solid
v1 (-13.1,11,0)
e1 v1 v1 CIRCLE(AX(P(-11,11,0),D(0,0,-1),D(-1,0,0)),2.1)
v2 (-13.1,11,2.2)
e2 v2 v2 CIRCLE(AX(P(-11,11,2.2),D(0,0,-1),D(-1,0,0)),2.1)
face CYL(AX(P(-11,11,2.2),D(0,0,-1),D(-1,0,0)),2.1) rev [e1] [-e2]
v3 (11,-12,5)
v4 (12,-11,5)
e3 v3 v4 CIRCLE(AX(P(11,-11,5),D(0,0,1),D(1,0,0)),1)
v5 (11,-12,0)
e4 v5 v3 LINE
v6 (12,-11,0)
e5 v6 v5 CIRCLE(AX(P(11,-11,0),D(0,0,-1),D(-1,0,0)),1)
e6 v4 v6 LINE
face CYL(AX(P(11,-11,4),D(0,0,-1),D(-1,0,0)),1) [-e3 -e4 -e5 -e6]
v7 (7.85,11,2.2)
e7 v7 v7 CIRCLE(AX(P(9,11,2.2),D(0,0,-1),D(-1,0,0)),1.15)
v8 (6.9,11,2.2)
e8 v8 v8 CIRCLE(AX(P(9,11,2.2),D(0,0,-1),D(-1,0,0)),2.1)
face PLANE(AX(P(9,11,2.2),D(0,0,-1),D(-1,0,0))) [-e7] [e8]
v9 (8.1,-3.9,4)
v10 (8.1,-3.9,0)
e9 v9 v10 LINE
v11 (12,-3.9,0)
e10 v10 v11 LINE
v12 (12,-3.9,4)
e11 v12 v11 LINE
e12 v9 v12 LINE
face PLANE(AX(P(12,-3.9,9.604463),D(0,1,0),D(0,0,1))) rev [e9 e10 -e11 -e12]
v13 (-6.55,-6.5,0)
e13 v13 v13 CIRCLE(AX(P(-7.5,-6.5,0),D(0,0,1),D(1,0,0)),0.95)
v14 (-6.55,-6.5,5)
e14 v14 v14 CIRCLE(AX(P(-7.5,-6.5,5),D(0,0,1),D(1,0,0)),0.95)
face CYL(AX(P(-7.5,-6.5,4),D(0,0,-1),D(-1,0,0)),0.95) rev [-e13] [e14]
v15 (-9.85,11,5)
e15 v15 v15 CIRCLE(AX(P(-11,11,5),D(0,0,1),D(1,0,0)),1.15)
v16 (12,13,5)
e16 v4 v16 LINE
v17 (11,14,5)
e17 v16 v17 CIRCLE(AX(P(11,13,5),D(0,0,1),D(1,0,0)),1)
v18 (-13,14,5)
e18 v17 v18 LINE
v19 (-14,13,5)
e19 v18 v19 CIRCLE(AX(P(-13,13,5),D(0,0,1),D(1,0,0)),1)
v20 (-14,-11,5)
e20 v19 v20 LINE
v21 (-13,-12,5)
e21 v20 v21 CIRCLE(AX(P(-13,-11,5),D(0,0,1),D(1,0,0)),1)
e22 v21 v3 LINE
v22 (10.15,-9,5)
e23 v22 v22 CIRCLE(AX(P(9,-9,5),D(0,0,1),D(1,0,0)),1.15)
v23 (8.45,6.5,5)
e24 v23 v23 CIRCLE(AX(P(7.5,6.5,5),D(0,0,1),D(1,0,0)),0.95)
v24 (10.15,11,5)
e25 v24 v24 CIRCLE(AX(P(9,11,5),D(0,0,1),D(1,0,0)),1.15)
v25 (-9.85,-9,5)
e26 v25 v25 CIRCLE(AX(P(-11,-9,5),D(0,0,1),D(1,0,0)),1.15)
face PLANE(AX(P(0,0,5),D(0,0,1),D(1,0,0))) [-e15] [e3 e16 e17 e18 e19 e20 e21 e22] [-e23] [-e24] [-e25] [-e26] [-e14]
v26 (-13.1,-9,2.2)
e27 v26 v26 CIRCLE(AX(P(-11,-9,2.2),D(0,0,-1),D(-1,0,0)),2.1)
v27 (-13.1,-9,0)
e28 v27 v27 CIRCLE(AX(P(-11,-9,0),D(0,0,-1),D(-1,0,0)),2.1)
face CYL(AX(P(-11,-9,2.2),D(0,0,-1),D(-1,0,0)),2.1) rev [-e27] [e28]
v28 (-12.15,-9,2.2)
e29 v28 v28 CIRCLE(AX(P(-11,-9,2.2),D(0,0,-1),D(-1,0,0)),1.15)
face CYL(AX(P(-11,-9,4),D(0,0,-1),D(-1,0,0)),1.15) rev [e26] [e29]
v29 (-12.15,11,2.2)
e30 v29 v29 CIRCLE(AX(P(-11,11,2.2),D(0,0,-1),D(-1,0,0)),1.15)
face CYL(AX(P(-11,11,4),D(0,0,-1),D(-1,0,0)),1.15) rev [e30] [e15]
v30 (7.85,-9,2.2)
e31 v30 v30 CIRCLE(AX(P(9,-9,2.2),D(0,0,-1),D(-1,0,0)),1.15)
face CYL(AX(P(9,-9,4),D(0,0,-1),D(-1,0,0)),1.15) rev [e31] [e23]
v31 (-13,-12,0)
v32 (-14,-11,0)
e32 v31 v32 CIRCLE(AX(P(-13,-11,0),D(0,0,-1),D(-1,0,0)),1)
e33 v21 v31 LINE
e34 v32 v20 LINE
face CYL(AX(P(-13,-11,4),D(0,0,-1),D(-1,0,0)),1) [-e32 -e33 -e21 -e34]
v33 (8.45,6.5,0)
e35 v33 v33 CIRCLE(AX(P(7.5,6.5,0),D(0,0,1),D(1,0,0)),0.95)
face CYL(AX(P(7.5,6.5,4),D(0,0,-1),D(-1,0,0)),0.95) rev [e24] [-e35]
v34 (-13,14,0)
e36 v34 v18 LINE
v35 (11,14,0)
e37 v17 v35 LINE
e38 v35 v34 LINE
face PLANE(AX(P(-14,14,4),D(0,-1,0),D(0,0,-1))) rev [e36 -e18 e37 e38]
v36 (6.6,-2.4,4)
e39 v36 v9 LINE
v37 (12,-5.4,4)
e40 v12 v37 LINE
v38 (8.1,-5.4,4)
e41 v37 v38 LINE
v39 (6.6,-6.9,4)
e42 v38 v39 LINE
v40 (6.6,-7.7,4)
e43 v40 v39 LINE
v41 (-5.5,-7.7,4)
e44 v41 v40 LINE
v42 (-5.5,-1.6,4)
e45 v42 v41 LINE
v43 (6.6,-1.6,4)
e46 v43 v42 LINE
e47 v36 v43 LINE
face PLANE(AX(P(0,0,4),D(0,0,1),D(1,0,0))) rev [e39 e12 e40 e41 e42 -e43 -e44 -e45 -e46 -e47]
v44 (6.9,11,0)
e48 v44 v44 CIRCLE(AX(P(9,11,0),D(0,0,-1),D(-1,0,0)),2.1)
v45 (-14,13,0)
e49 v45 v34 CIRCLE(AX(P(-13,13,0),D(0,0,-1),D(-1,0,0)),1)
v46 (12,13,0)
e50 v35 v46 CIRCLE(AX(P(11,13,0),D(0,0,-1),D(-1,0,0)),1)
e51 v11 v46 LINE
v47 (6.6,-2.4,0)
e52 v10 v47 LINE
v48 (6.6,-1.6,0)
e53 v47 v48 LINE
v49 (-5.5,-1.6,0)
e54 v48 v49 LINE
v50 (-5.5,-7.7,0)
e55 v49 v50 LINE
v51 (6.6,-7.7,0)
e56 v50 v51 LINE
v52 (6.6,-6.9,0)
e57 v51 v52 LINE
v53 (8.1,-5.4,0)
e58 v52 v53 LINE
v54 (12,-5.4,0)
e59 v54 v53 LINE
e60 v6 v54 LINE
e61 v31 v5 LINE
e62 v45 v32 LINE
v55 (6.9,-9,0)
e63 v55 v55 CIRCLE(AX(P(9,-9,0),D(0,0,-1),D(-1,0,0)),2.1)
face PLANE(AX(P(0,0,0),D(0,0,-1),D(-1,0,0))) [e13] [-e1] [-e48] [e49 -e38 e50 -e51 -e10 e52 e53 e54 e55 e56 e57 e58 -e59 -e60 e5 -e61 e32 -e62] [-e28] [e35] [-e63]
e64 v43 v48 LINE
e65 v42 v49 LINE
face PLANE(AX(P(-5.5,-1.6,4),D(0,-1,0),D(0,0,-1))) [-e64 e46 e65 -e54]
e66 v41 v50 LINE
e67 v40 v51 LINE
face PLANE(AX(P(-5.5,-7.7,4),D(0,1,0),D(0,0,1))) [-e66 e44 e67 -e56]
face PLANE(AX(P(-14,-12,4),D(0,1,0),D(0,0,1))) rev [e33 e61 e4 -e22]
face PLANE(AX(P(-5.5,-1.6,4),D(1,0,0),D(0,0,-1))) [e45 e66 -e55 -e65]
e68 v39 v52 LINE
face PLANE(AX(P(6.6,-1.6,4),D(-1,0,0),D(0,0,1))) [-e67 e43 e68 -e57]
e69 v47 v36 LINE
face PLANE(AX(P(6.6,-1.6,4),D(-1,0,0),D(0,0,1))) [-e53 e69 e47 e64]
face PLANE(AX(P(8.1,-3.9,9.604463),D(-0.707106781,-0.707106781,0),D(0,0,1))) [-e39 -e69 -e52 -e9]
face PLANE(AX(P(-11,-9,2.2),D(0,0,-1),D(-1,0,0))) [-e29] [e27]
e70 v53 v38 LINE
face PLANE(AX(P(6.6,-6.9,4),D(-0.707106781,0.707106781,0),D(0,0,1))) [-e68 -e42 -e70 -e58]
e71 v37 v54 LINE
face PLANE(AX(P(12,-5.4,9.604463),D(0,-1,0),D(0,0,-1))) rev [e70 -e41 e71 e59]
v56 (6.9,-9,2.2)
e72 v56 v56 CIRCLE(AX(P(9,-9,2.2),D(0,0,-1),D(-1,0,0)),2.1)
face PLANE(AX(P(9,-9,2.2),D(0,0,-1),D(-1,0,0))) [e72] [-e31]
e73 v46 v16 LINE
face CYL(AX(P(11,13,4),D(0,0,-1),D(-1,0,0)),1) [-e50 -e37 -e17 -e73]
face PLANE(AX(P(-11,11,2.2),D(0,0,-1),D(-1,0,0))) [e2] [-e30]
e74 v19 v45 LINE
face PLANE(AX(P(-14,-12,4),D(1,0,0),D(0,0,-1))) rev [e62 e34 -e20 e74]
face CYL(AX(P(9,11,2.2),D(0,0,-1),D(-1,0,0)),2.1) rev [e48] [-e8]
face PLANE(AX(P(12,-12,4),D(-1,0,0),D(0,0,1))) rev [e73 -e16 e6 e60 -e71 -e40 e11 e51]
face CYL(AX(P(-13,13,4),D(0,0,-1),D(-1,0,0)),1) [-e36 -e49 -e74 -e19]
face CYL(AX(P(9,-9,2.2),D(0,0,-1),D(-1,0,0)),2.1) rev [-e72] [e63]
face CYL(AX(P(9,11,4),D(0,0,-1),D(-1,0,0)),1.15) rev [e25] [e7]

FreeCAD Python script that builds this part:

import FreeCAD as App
import Part
import Sketcher
Q = App.Units.Quantity


def edges_at(feature, points):
    """Names of the edges that pass closest to the given points."""
    edges = feature.Shape.Edges
    near = lambda p: min(range(len(edges)), key=lambda i: edges[i].distToShape(Part.Vertex(*p))[0])
    return sorted({f"Edge{near(p) + 1}" for p in points})


def add_polygon(sketch, points):
    """Adds a closed chain of lines whose ends are joined by coincident constraints."""
    first, n = sketch.GeometryCount, len(points)
    for a, b in zip(points, points[1:] + points[:1]):
        sketch.addGeometry(Part.LineSegment(App.Vector(*a, 0), App.Vector(*b, 0)), False)
    for i in range(n):
        sketch.addConstraint(Sketcher.Constraint("Coincident", first + i, 2, first + (i + 1) % n, 1))

doc = App.newDocument("Part")
body = doc.addObject("PartDesign::Body", "Body")

# Sketch on XY plane
sketch1 = doc.addObject("Sketcher::SketchObject", "Sketch")
body.addObject(sketch1)
sketch1.AttachmentSupport = (doc.XY_Plane, [""])
sketch1.MapMode = "FlatFace"
add_polygon(sketch1, [(-14, 14), (-14, -12), (12, -12), (12, 14)])  # lines 0-3
sketch1.addGeometry(Part.Circle(App.Vector(-11, -9, 0), App.Vector(0, 0, 1), 1.1), False)  # 4
sketch1.addGeometry(Part.Circle(App.Vector(-7.5, -6.5, 0), App.Vector(0, 0, 1), 0.9), False)  # 5
add_polygon(sketch1, [(6.6, -7.7), (-5.5, -7.7), (-5.5, -1.6), (6.6, -1.6)])  # lines 6-9
sketch1.addGeometry(Part.Circle(App.Vector(9, -9, 0), App.Vector(0, 0, 1), 1.1), False)  # 10
sketch1.addGeometry(Part.Circle(App.Vector(-11, 11, 0), App.Vector(0, 0, 1), 1.1), False)  # 11
sketch1.addGeometry(Part.Circle(App.Vector(7.5, 6.5, 0), App.Vector(0, 0, 1), 0.9), False)  # 12
sketch1.addGeometry(Part.Circle(App.Vector(9, 11, 0), App.Vector(0, 0, 1), 1.1), False)  # 13
sketch1.addConstraint(Sketcher.Constraint("Vertical", 0))
sketch1.addConstraint(Sketcher.Constraint("Horizontal", 1))
sketch1.addConstraint(Sketcher.Constraint("Vertical", 2))
sketch1.addConstraint(Sketcher.Constraint("Horizontal", 3))
sketch1.addConstraint(Sketcher.Constraint("Horizontal", 6))
sketch1.addConstraint(Sketcher.Constraint("Vertical", 7))
sketch1.addConstraint(Sketcher.Constraint("Horizontal", 8))
sketch1.addConstraint(Sketcher.Constraint("Vertical", 9))
sketch1.addConstraint(Sketcher.Constraint("Equal", 4, 10))
sketch1.addConstraint(Sketcher.Constraint("Equal", 10, 11))
sketch1.addConstraint(Sketcher.Constraint("Equal", 5, 12))
sketch1.addConstraint(Sketcher.Constraint("Equal", 11, 13))
sketch1.addConstraint(Sketcher.Constraint("Symmetric", 5, 3, 12, 3, -1, 1))
sketch1.addConstraint(Sketcher.Constraint("Horizontal", 4, 3, 10, 3))
sketch1.addConstraint(Sketcher.Constraint("Horizontal", 11, 3, 13, 3))
sketch1.addConstraint(Sketcher.Constraint("Vertical", 4, 3, 11, 3))
sketch1.addConstraint(Sketcher.Constraint("Vertical", 10, 3, 13, 3))
sketch1.addConstraint(Sketcher.Constraint("Equal", 3, 0))
sketch1.addConstraint(Sketcher.Constraint("Diameter", 4, Q("2.3 mm")))
sketch1.addConstraint(Sketcher.Constraint("Diameter", 5, Q("1.9 mm")))
sketch1.addConstraint(Sketcher.Constraint("DistanceX", 1, 1, 1, 2, Q("26 mm")))
sketch1.addConstraint(Sketcher.Constraint("DistanceX", 6, 2, 6, 1, Q("12.1 mm")))
sketch1.addConstraint(Sketcher.Constraint("DistanceY", 7, 1, 7, 2, Q("6.1 mm")))
sketch1.addConstraint(Sketcher.Constraint("DistanceX", 4, 3, -1, 1, Q("11 mm")))
sketch1.addConstraint(Sketcher.Constraint("DistanceY", 4, 3, -1, 1, Q("9 mm")))
sketch1.addConstraint(Sketcher.Constraint("DistanceX", -1, 1, 10, 3, Q("9 mm")))
sketch1.addConstraint(Sketcher.Constraint("DistanceY", -1, 1, 11, 3, Q("11 mm")))
sketch1.addConstraint(Sketcher.Constraint("DistanceX", 0, 2, -1, 1, Q("14 mm")))
sketch1.addConstraint(Sketcher.Constraint("DistanceY", 0, 2, -1, 1, Q("12 mm")))
sketch1.addConstraint(Sketcher.Constraint("DistanceX", 5, 3, 12, 3, Q("15 mm")))
sketch1.addConstraint(Sketcher.Constraint("DistanceY", 5, 3, 12, 3, Q("13 mm")))
sketch1.addConstraint(Sketcher.Constraint("DistanceX", 5, 3, 6, 2, Q("2 mm")))
sketch1.addConstraint(Sketcher.Constraint("DistanceY", 6, 2, -1, 1, Q("7.7 mm")))
pad1 = doc.addObject("PartDesign::Pad", "Pad")
body.addObject(pad1)
pad1.Profile = sketch1
pad1.Length = 4

# Sketch on XY plane
sketch2 = doc.addObject("Sketcher::SketchObject", "Sketch001")
body.addObject(sketch2)
sketch2.AttachmentSupport = (doc.XY_Plane, [""])
sketch2.MapMode = "FlatFace"
sketch2.AttachmentOffset = App.Placement(App.Vector(0, 0, 4), App.Rotation())
add_polygon(sketch2, [(-14, 14), (-14, -12), (12, -12), (12, 14)])  # lines 0-3
sketch2.addGeometry(Part.Circle(App.Vector(-11, -9, 0), App.Vector(0, 0, 1), 1.1), False)  # 4
sketch2.addGeometry(Part.Circle(App.Vector(-7.5, -6.5, 0), App.Vector(0, 0, 1), 0.9), False)  # 5
sketch2.addGeometry(Part.Circle(App.Vector(9, -9, 0), App.Vector(0, 0, 1), 1.1), False)  # 6
sketch2.addGeometry(Part.Circle(App.Vector(-11, 11, 0), App.Vector(0, 0, 1), 1.1), False)  # 7
sketch2.addGeometry(Part.Circle(App.Vector(7.5, 6.5, 0), App.Vector(0, 0, 1), 0.9), False)  # 8
sketch2.addGeometry(Part.Circle(App.Vector(9, 11, 0), App.Vector(0, 0, 1), 1.1), False)  # 9
sketch2.addConstraint(Sketcher.Constraint("Vertical", 0))
sketch2.addConstraint(Sketcher.Constraint("Horizontal", 1))
sketch2.addConstraint(Sketcher.Constraint("Vertical", 2))
sketch2.addConstraint(Sketcher.Constraint("Horizontal", 3))
sketch2.addConstraint(Sketcher.Constraint("Equal", 4, 6))
sketch2.addConstraint(Sketcher.Constraint("Equal", 6, 7))
sketch2.addConstraint(Sketcher.Constraint("Equal", 5, 8))
sketch2.addConstraint(Sketcher.Constraint("Equal", 7, 9))
sketch2.addConstraint(Sketcher.Constraint("Symmetric", 5, 3, 8, 3, -1, 1))
sketch2.addConstraint(Sketcher.Constraint("Horizontal", 4, 3, 6, 3))
sketch2.addConstraint(Sketcher.Constraint("Horizontal", 7, 3, 9, 3))
sketch2.addConstraint(Sketcher.Constraint("Vertical", 4, 3, 7, 3))
sketch2.addConstraint(Sketcher.Constraint("Vertical", 6, 3, 9, 3))
sketch2.addConstraint(Sketcher.Constraint("Equal", 3, 0))
sketch2.addConstraint(Sketcher.Constraint("Diameter", 4, Q("2.3 mm")))
sketch2.addConstraint(Sketcher.Constraint("Diameter", 5, Q("1.9 mm")))
sketch2.addConstraint(Sketcher.Constraint("DistanceX", 1, 1, 1, 2, Q("26 mm")))
sketch2.addConstraint(Sketcher.Constraint("DistanceX", 4, 3, -1, 1, Q("11 mm")))
sketch2.addConstraint(Sketcher.Constraint("DistanceY", 4, 3, -1, 1, Q("9 mm")))
sketch2.addConstraint(Sketcher.Constraint("DistanceX", -1, 1, 6, 3, Q("9 mm")))
sketch2.addConstraint(Sketcher.Constraint("DistanceY", -1, 1, 7, 3, Q("11 mm")))
sketch2.addConstraint(Sketcher.Constraint("DistanceX", 0, 2, -1, 1, Q("14 mm")))
sketch2.addConstraint(Sketcher.Constraint("DistanceY", 0, 2, -1, 1, Q("12 mm")))
sketch2.addConstraint(Sketcher.Constraint("DistanceX", 5, 3, 8, 3, Q("15 mm")))
sketch2.addConstraint(Sketcher.Constraint("DistanceY", 5, 3, 8, 3, Q("13 mm")))
pad2 = doc.addObject("PartDesign::Pad", "Pad001")
body.addObject(pad2)
pad2.Profile = sketch2
pad2.Length = 1

# Sketch on XY plane
sketch3 = doc.addObject("Sketcher::SketchObject", "Sketch002")
body.addObject(sketch3)
sketch3.AttachmentSupport = (doc.XY_Plane, [""])
sketch3.MapMode = "FlatFace"
sketch3.addGeometry(Part.Circle(App.Vector(9, 11, 0), App.Vector(0, 0, 1), 2.1), False)
sketch3.addGeometry(Part.Circle(App.Vector(-11, 11, 0), App.Vector(0, 0, 1), 2.1), False)
sketch3.addGeometry(Part.Circle(App.Vector(-11, -9, 0), App.Vector(0, 0, 1), 2.1), False)
sketch3.addGeometry(Part.Circle(App.Vector(9, -9, 0), App.Vector(0, 0, 1), 2.1), False)
sketch3.addConstraint(Sketcher.Constraint("Equal", 0, 1))
sketch3.addConstraint(Sketcher.Constraint("Equal", 1, 2))
sketch3.addConstraint(Sketcher.Constraint("Equal", 2, 3))
sketch3.addConstraint(Sketcher.Constraint("Horizontal", 0, 3, 1, 3))
sketch3.addConstraint(Sketcher.Constraint("Horizontal", 2, 3, 3, 3))
sketch3.addConstraint(Sketcher.Constraint("Vertical", 1, 3, 2, 3))
sketch3.addConstraint(Sketcher.Constraint("Vertical", 0, 3, 3, 3))
sketch3.addConstraint(Sketcher.Constraint("Diameter", 0, Q("4.2 mm")))
sketch3.addConstraint(Sketcher.Constraint("DistanceX", -1, 1, 0, 3, Q("9 mm")))
sketch3.addConstraint(Sketcher.Constraint("DistanceY", -1, 1, 0, 3, Q("11 mm")))
sketch3.addConstraint(Sketcher.Constraint("DistanceX", 1, 3, -1, 1, Q("11 mm")))
sketch3.addConstraint(Sketcher.Constraint("DistanceY", 2, 3, -1, 1, Q("9 mm")))
pocket1 = doc.addObject("PartDesign::Pocket", "Pocket")
body.addObject(pocket1)
pocket1.Profile = sketch3
pocket1.Length = 2.2
pocket1.Reversed = True

# Sketch on XY plane
sketch4 = doc.addObject("Sketcher::SketchObject", "Sketch003")
body.addObject(sketch4)
sketch4.AttachmentSupport = (doc.XY_Plane, [""])
sketch4.MapMode = "FlatFace"
add_polygon(sketch4, [(12, -3.9), (12, -5.4), (6.6, -5.4), (6.6, -3.9)])  # lines 0-3
sketch4.addConstraint(Sketcher.Constraint("Vertical", 0))
sketch4.addConstraint(Sketcher.Constraint("Horizontal", 1))
sketch4.addConstraint(Sketcher.Constraint("Vertical", 2))
sketch4.addConstraint(Sketcher.Constraint("Horizontal", 3))
sketch4.addConstraint(Sketcher.Constraint("DistanceX", 1, 2, 1, 1, Q("5.4 mm")))
sketch4.addConstraint(Sketcher.Constraint("DistanceY", 0, 2, 0, 1, Q("1.5 mm")))
sketch4.addConstraint(Sketcher.Constraint("DistanceX", -1, 1, 0, 2, Q("12 mm")))
sketch4.addConstraint(Sketcher.Constraint("DistanceY", 0, 2, -1, 1, Q("5.4 mm")))
pocket2 = doc.addObject("PartDesign::Pocket", "Pocket001")
body.addObject(pocket2)
pocket2.Profile = sketch4
pocket2.Length = 4
pocket2.Reversed = True
doc.recompute()

chamfer = doc.addObject("PartDesign::Chamfer", "Chamfer")
body.addObject(chamfer)
chamfer.Base = (pocket2, edges_at(pocket2, [(6.6, -5.4, 2), (6.6, -3.9, 2)]))
chamfer.Size = 1.5
doc.recompute()

fillet = doc.addObject("PartDesign::Fillet", "Fillet")
body.addObject(fillet)
fillet.Base = (chamfer, edges_at(chamfer, [
    (12, -12, 2.5),
    (-14, -12, 2.5),
    (-14, 14, 2.5),
    (12, 14, 2.5),
]))
fillet.Radius = 1

doc.recompute()
